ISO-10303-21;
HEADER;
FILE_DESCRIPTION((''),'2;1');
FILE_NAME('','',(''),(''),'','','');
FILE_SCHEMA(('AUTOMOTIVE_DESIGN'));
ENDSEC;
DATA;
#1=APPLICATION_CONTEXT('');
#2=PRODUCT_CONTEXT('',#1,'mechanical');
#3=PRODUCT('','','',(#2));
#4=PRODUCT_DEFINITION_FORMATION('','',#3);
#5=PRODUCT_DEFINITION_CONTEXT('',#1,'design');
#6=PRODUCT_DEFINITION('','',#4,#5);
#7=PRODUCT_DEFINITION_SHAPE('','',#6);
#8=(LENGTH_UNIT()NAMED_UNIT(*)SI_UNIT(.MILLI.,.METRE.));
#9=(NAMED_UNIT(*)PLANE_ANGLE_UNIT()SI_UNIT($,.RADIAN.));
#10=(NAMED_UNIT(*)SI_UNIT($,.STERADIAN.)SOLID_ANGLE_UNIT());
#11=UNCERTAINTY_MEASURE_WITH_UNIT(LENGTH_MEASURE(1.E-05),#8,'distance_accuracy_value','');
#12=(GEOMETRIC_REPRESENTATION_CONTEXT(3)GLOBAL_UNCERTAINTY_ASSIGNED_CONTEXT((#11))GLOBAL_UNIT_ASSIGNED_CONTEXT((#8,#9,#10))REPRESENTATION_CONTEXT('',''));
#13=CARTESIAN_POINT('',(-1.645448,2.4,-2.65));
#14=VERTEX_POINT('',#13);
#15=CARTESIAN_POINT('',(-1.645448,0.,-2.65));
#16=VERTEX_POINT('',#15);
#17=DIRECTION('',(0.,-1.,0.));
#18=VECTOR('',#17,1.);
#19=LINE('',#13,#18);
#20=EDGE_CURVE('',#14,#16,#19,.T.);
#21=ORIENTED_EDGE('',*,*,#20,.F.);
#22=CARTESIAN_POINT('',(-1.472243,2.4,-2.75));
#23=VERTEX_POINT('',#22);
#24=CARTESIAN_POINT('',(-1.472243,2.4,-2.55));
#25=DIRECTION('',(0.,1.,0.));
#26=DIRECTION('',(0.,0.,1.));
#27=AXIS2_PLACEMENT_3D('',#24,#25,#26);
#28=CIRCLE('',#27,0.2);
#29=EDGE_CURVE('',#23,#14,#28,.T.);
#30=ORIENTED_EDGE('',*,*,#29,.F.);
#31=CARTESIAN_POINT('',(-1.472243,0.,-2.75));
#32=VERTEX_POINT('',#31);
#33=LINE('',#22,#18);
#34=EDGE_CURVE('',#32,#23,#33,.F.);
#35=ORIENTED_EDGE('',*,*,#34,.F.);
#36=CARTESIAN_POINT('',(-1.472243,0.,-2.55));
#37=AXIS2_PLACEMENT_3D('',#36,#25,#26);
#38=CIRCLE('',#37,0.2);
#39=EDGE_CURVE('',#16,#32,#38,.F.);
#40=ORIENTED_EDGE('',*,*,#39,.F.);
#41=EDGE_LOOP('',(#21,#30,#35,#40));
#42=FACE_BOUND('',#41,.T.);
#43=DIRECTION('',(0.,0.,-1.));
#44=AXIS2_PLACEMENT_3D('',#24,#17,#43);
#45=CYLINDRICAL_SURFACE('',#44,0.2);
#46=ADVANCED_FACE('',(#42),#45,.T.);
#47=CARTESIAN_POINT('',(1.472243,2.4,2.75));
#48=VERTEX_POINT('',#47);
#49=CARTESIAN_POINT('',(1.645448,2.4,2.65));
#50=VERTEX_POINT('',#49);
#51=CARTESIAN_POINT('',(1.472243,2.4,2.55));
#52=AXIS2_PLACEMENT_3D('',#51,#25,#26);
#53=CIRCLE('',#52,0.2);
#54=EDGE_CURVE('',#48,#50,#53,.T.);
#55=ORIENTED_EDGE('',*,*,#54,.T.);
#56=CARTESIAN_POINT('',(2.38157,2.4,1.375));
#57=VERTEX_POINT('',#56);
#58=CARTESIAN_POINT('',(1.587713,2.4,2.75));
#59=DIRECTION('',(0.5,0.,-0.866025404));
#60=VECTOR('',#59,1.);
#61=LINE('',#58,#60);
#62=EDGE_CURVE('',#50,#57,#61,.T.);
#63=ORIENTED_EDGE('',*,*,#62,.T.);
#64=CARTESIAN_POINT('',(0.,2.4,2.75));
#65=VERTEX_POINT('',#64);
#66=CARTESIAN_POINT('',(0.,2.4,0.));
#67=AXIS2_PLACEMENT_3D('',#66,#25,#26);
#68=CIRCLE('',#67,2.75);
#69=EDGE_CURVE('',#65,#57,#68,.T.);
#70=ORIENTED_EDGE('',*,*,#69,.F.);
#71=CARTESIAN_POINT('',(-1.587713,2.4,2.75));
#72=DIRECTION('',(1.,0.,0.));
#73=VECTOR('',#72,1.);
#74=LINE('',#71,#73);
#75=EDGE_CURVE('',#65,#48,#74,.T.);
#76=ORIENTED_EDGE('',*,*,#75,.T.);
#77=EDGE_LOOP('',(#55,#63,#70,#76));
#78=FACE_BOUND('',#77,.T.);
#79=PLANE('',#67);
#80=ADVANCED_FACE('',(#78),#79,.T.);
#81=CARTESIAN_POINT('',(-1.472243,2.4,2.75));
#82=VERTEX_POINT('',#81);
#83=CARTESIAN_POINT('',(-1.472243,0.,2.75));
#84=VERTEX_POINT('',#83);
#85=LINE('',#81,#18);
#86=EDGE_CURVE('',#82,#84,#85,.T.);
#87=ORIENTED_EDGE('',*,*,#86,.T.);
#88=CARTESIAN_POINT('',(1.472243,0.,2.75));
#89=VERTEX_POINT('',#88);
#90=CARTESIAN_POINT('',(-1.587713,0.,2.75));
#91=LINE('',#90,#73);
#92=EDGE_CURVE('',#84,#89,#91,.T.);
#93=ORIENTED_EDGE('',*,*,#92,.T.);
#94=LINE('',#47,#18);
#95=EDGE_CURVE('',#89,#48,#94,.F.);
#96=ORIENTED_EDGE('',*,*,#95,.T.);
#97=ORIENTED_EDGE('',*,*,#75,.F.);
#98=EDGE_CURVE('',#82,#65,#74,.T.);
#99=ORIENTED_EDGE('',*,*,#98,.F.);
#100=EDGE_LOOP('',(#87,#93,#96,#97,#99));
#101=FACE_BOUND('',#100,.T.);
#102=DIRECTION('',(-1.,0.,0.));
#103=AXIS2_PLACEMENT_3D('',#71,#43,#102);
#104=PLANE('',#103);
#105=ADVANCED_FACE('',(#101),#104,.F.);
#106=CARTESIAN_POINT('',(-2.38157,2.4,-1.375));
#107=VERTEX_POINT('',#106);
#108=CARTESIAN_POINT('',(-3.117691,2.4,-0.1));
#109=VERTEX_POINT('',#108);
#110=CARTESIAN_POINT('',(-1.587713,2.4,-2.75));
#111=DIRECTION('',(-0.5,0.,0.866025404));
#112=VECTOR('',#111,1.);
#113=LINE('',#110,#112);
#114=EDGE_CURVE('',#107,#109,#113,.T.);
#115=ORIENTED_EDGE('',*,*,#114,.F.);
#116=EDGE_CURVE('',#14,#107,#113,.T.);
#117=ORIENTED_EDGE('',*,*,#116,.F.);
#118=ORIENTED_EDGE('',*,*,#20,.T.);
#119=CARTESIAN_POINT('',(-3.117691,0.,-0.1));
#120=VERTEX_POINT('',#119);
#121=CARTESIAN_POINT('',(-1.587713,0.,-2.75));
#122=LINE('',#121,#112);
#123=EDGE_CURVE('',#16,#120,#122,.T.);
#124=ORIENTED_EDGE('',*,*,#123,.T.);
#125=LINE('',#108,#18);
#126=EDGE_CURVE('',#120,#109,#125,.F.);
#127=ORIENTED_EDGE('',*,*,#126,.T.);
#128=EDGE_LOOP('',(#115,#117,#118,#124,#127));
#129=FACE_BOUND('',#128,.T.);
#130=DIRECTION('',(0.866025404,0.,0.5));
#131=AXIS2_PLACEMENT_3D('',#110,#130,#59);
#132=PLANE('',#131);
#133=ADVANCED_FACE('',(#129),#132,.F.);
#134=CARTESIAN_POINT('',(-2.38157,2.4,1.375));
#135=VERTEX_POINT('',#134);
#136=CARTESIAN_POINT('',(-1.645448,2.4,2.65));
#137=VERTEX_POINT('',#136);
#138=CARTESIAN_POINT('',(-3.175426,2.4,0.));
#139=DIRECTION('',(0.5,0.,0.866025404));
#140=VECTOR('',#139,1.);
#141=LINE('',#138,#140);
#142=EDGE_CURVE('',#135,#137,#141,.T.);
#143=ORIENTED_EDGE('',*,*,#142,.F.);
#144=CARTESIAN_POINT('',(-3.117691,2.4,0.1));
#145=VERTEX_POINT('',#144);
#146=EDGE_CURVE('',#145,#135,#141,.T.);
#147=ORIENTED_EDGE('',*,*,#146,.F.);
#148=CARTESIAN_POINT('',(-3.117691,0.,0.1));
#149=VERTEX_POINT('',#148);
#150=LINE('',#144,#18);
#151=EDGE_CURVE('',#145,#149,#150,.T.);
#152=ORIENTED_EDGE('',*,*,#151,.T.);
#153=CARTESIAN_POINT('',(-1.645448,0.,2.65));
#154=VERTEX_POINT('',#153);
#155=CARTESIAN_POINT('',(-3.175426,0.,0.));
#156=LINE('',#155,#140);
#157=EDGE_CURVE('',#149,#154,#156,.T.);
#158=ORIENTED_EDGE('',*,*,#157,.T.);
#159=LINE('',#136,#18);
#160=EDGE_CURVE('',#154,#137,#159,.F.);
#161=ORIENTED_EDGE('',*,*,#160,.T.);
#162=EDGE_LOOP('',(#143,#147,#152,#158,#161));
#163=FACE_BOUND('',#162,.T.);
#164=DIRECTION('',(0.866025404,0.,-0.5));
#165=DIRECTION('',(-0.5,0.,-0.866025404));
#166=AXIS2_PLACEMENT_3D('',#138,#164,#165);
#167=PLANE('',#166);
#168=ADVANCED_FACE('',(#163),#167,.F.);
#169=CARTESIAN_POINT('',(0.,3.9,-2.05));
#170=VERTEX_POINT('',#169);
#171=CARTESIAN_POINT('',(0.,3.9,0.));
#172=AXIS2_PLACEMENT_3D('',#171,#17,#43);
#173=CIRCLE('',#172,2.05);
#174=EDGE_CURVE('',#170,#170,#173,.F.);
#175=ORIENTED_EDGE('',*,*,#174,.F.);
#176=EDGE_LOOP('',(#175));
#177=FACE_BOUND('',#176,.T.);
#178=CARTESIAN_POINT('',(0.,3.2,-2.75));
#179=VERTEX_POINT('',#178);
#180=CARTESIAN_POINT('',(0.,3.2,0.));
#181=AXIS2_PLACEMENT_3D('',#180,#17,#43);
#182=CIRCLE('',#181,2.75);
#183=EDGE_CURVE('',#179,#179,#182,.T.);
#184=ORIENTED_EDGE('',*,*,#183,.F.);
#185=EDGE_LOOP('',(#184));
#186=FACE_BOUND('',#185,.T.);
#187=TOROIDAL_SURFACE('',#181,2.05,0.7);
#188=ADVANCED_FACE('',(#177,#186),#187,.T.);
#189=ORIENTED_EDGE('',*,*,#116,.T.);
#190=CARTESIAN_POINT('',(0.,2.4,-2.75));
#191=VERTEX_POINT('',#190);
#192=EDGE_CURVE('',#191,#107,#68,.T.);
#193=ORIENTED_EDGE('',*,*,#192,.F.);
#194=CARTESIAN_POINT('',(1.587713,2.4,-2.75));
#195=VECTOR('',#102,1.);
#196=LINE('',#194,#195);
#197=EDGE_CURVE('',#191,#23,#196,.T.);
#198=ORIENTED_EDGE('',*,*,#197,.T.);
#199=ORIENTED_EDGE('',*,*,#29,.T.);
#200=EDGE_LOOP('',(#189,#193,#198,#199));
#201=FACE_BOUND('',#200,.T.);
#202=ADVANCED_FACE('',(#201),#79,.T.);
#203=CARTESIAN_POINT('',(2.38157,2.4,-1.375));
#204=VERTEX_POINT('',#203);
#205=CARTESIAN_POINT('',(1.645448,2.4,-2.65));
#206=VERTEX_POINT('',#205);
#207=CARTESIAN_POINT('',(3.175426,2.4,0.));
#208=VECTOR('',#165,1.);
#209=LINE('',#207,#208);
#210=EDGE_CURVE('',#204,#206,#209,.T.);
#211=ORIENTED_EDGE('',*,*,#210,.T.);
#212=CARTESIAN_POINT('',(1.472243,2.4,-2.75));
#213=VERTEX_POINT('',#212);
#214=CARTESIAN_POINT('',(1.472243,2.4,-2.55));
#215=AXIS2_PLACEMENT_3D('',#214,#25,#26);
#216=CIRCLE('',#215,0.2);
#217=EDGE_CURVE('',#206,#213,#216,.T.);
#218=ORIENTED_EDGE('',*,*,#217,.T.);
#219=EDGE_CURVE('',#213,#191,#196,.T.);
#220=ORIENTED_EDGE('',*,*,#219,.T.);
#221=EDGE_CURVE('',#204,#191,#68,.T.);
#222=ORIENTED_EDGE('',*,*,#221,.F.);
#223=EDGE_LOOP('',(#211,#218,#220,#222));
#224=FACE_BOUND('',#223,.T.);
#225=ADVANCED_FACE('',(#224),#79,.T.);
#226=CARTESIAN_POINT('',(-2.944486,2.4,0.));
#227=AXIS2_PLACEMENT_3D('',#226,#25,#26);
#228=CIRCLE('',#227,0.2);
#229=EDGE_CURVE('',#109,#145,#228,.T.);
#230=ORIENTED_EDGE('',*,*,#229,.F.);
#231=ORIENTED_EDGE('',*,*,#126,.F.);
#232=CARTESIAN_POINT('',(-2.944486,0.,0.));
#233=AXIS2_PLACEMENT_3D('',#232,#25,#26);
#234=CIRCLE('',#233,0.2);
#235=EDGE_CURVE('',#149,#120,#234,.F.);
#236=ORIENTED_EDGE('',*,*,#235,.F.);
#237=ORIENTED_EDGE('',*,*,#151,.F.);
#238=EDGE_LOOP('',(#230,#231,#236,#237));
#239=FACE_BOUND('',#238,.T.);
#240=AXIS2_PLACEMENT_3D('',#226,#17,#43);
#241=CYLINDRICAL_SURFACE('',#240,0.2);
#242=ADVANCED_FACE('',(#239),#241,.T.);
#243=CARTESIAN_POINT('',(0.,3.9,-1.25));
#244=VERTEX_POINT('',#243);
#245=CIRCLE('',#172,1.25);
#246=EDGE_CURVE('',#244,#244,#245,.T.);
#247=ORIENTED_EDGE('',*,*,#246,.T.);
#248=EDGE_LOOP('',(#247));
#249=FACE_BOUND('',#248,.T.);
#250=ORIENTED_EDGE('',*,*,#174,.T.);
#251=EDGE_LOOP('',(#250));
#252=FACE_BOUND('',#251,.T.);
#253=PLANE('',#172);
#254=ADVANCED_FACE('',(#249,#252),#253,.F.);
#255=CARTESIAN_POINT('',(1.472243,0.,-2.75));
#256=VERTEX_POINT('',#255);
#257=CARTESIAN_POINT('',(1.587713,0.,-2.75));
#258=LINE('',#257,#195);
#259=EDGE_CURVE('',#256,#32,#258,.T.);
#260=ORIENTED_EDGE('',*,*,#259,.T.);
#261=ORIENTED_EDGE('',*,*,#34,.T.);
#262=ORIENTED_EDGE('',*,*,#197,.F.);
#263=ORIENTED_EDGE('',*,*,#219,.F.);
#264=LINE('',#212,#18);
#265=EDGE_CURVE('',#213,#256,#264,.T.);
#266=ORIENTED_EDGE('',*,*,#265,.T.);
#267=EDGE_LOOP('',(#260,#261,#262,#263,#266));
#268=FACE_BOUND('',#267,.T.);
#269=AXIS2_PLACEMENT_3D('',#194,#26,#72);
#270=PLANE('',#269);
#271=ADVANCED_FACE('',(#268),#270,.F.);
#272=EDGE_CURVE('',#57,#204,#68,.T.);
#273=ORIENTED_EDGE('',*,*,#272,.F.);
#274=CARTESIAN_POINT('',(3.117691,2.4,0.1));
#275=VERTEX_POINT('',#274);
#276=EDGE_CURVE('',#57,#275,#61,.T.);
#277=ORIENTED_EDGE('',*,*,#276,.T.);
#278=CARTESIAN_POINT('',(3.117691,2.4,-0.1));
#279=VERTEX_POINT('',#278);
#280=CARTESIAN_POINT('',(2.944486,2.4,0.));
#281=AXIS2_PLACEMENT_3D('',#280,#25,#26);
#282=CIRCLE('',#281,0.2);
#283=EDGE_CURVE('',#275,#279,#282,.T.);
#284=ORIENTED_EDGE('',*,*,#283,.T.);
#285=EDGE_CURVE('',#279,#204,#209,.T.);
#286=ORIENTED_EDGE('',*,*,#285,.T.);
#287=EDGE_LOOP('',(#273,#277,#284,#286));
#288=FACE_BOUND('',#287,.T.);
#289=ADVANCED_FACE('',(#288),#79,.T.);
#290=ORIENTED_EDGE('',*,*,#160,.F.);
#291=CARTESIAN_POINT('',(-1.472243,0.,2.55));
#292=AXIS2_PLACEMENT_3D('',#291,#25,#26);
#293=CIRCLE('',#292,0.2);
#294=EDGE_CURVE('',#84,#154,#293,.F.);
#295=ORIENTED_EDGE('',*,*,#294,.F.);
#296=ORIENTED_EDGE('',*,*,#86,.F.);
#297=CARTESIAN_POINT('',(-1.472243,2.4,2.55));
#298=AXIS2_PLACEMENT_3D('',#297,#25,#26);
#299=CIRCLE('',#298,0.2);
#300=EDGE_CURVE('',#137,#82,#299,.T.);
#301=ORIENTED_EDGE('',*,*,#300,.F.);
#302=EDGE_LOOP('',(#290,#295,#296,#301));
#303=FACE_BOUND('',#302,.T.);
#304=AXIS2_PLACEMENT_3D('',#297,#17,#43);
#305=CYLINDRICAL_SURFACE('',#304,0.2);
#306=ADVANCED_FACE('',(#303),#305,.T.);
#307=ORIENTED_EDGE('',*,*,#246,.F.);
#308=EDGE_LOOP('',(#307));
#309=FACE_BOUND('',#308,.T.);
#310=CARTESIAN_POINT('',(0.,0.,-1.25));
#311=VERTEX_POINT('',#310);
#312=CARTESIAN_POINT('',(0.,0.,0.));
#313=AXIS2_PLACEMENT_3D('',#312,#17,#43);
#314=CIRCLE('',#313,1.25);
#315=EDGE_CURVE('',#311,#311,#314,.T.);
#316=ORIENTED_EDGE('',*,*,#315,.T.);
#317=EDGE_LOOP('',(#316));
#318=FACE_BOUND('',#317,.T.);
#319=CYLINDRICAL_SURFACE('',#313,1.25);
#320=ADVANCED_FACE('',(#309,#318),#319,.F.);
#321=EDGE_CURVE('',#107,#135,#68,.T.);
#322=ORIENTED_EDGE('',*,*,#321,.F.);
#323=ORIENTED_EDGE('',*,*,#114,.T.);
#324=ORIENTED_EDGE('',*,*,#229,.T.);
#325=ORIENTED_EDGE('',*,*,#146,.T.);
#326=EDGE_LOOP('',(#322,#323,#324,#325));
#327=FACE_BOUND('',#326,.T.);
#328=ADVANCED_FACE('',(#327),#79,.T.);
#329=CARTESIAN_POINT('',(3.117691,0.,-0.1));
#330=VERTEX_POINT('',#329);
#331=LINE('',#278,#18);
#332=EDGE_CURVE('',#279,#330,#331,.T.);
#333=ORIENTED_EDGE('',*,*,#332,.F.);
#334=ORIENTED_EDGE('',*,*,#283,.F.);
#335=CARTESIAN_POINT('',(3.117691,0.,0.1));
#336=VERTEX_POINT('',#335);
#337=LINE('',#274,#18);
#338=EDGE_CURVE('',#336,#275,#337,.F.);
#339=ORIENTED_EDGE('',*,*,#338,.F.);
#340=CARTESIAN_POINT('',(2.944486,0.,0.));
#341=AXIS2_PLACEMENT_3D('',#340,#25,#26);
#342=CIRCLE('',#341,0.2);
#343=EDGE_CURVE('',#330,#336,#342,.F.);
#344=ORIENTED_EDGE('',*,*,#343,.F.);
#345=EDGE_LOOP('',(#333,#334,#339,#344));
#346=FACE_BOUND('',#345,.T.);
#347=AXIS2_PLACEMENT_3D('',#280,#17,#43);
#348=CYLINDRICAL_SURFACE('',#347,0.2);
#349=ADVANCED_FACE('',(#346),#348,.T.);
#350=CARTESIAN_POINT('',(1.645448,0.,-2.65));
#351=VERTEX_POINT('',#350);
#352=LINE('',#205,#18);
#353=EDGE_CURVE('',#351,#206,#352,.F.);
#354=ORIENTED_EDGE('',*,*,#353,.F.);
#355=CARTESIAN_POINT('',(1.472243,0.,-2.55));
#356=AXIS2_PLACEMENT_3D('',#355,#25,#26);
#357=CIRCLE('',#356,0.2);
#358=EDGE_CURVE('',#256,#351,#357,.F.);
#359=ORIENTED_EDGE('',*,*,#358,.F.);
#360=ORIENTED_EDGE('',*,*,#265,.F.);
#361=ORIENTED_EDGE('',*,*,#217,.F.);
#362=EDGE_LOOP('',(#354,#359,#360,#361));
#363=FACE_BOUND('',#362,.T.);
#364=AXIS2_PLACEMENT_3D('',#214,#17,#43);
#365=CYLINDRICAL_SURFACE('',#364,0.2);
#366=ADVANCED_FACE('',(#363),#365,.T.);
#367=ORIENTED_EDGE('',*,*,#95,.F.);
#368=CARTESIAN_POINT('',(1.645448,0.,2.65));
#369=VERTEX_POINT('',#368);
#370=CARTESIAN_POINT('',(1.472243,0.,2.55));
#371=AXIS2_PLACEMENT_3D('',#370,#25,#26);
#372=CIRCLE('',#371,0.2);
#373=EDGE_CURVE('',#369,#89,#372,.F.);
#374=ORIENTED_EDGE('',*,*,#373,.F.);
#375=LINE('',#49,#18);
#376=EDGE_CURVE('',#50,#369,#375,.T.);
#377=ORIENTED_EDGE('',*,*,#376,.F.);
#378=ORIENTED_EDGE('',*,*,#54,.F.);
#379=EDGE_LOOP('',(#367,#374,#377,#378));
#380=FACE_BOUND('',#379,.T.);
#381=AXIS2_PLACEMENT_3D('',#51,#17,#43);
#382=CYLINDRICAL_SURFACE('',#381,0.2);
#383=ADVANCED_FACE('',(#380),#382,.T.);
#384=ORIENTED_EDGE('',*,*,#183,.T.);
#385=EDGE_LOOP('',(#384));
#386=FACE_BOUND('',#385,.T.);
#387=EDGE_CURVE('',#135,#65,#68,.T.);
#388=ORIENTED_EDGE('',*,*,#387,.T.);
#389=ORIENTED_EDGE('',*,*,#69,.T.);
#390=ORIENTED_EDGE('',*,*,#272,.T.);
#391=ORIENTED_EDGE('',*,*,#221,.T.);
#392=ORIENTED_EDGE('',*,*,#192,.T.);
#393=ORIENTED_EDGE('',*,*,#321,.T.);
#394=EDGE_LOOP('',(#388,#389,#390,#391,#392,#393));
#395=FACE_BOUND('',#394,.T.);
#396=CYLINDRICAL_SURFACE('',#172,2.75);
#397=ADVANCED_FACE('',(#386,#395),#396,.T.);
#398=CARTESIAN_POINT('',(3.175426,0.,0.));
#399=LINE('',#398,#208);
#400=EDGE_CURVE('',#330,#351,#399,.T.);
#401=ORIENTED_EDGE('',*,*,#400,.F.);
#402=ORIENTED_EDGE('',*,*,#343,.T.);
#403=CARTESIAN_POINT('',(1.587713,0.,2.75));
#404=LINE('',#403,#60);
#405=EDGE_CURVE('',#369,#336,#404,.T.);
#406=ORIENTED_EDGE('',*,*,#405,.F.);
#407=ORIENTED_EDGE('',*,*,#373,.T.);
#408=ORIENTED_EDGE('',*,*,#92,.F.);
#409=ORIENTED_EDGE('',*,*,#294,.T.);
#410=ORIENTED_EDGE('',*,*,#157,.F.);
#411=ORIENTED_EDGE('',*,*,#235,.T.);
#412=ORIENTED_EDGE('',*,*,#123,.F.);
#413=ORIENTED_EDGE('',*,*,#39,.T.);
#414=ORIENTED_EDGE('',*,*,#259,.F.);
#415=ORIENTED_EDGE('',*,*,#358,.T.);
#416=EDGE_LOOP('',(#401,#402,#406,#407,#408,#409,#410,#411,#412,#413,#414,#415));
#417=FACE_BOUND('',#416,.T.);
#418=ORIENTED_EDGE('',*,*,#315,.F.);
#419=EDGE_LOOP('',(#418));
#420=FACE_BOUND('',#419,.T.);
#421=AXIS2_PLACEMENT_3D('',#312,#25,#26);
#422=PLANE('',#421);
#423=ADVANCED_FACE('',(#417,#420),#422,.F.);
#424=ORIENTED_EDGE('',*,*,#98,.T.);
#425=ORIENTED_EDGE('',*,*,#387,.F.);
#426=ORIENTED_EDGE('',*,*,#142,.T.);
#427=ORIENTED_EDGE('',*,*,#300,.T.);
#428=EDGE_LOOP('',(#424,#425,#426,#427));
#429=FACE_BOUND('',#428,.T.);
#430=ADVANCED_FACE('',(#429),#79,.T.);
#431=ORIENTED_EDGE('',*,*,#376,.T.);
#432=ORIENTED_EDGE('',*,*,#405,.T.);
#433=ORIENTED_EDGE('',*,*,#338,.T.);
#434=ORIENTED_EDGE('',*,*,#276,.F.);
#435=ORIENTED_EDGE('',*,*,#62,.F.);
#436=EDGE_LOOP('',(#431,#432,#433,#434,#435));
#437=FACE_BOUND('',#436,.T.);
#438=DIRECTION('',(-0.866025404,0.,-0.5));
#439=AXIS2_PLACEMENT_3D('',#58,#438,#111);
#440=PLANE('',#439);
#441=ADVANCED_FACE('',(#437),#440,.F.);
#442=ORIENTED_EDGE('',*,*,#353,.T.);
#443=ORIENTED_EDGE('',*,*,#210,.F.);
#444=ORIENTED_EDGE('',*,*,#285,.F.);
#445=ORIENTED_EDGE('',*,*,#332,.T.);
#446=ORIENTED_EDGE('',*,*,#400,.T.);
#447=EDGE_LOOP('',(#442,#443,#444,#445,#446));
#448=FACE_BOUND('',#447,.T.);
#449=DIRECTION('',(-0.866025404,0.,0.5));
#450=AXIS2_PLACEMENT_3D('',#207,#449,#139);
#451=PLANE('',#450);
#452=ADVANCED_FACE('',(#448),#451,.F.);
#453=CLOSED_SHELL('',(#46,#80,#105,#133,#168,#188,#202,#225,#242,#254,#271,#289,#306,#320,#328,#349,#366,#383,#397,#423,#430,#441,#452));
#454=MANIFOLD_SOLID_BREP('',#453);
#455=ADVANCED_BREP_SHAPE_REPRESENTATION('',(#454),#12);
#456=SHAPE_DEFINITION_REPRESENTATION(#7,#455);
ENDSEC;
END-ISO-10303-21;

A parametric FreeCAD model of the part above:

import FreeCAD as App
import Part
import Sketcher
from FreeCAD import Vector
Q = App.Units.Quantity


def edges_at(feature, points):
    """Names of the edges that pass closest to the given points."""
    edges = feature.Shape.Edges
    near = lambda p: min(range(len(edges)), key=lambda i: edges[i].distToShape(Part.Vertex(*p))[0])
    return sorted({f"Edge{near(p) + 1}" for p in points})

doc = App.newDocument("Part")
body = doc.addObject("PartDesign::Body", "Body")

# Sketch on XZ plane
sketch1 = body.newObject("Sketcher::SketchObject", "Sketch")
sketch1.AttachmentSupport = (doc.getObject("XZ_Plane"), [""])
sketch1.MapMode = "FlatFace"
sketch1.addGeometry([
    Part.LineSegment(Vector(3.2, 0, 0), Vector(1.6, -2.8, 0)),  # 0
    Part.LineSegment(Vector(1.6, -2.8, 0), Vector(-1.6, -2.8, 0)),  # 1
    Part.LineSegment(Vector(-1.6, -2.8, 0), Vector(-3.2, 0, 0)),  # 2
    Part.LineSegment(Vector(-3.2, 0, 0), Vector(-1.6, 2.8, 0)),  # 3
    Part.LineSegment(Vector(-1.6, 2.8, 0), Vector(1.6, 2.8, 0)),  # 4
    Part.LineSegment(Vector(1.6, 2.8, 0), Vector(3.2, 0, 0)),  # 5
], False)
sketch1.addConstraint([
    Sketcher.Constraint("Coincident", 0, 2, 1, 1),
    Sketcher.Constraint("Coincident", 1, 2, 2, 1),
    Sketcher.Constraint("Coincident", 2, 2, 3, 1),
    Sketcher.Constraint("Coincident", 3, 2, 4, 1),
    Sketcher.Constraint("Coincident", 4, 2, 5, 1),
    Sketcher.Constraint("Coincident", 5, 2, 0, 1),
    Sketcher.Constraint("Horizontal", 1),
    Sketcher.Constraint("Horizontal", 4),
    Sketcher.Constraint("Symmetric", 0, 2, 3, 2, -1, 1),
    Sketcher.Constraint("Symmetric", 2, 2, 5, 2, -1, 1),
    Sketcher.Constraint("PointOnObject", 2, 2, -1),
    Sketcher.Constraint("Parallel", 2, 5),
    Sketcher.Constraint("Vertical", 1, 2, 3, 2),
    Sketcher.Constraint("Angle", 0, Q("-120 deg")),
    Sketcher.Constraint("DistanceY", 1, 2, 3, 2, 5.5),
    Sketcher.Constraint("DistanceX", 1, 2, 1, 1, 3.175426),
])
pad1 = body.newObject("PartDesign::Pad", "Pad")
pad1.Profile = sketch1
pad1.Length = 2.4
pad1.Reversed = True

# Sketch on XZ plane
sketch2 = body.newObject("Sketcher::SketchObject", "Sketch001")
sketch2.AttachmentSupport = (doc.getObject("XZ_Plane"), [""])
sketch2.MapMode = "FlatFace"
sketch2.addGeometry(Part.Circle(Vector(0, 0, 0), Vector(0, 0, 1), 2.8), False)
sketch2.addConstraint([
    Sketcher.Constraint("Coincident", 0, 3, -1, 1),
    Sketcher.Constraint("Diameter", 0, 5.5),
])
pad2 = body.newObject("PartDesign::Pad", "Pad001")
pad2.Profile = sketch2
pad2.Length = 3.9
pad2.Reversed = True
doc.recompute()

fillet = body.newObject("PartDesign::Fillet", "Fillet")
fillet.Base = (pad2, edges_at(pad2, [(-2.75, 3.9, 0)]))
fillet.Radius = 0.7
doc.recompute()

fillet2 = body.newObject("PartDesign::Fillet", "Fillet001")
fillet2.Base = (fillet, edges_at(fillet, [
    (1.588, 1.2, 2.75),
    (-1.588, 1.2, 2.75),
    (-3.175, 1.2, 0),
    (-1.588, 1.2, -2.75),
    (1.588, 1.2, -2.75),
    (3.175, 1.2, 0),
]))
fillet2.Radius = 0.2

# Sketch on XZ plane
sketch3 = body.newObject("Sketcher::SketchObject", "Sketch002")
sketch3.AttachmentSupport = (doc.getObject("XZ_Plane"), [""])
sketch3.MapMode = "FlatFace"
sketch3.addGeometry(Part.Circle(Vector(0, 0, 0), Vector(0, 0, 1), 1.2), False)
sketch3.addConstraint([
    Sketcher.Constraint("Coincident", 0, 3, -1, 1),
    Sketcher.Constraint("Diameter", 0, 2.5),
])
doc.recompute()
hole = body.newObject("PartDesign::Hole", "Hole")
hole.Profile = sketch3
hole.ThreadType = "None"
hole.Diameter = 2.5
hole.DepthType = "ThroughAll"

doc.recompute()
